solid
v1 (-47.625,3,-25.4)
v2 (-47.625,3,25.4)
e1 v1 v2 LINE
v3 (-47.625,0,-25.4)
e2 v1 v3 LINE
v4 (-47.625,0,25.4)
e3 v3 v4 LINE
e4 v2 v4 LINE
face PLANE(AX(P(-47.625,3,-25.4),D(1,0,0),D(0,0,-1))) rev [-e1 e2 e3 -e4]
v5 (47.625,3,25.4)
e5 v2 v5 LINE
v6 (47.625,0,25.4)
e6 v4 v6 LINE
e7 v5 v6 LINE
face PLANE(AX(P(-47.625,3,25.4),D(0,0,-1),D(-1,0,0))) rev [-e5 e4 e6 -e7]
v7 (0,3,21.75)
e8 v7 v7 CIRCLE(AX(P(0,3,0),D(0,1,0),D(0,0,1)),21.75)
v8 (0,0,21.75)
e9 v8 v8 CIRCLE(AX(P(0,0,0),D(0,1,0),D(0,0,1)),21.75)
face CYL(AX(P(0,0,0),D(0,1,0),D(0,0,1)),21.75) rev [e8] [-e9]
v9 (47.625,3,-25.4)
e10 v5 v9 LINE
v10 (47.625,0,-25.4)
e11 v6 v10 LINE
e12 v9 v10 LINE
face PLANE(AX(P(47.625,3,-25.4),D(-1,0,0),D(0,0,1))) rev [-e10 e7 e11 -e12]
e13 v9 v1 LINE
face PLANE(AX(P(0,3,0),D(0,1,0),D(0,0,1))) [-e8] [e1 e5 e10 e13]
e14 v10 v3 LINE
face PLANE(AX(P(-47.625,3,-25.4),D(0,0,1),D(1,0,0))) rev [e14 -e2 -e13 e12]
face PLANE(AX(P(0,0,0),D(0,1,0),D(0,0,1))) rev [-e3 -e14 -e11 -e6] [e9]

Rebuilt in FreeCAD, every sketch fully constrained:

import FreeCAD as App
import Part
import Sketcher
from FreeCAD import Vector
Q = App.Units.Quantity


def add_polygon(sketch, points):
    """Adds a closed chain of lines whose ends are joined by coincident constraints."""
    first, n = sketch.GeometryCount, len(points)
    for a, b in zip(points, points[1:] + points[:1]):
        sketch.addGeometry(Part.LineSegment(App.Vector(*a, 0), App.Vector(*b, 0)), False)
    for i in range(n):
        sketch.addConstraint(Sketcher.Constraint("Coincident", first + i, 2, first + (i + 1) % n, 1))

doc = App.newDocument("Part")
body = doc.addObject("PartDesign::Body", "Body")

# Sketch on XZ plane
sketch1 = doc.addObject("Sketcher::SketchObject", "Sketch")
body.addObject(sketch1)
sketch1.AttachmentSupport = (doc.XZ_Plane, [""])
sketch1.MapMode = "FlatFace"
add_polygon(sketch1, [(-47.625, -25.4), (-47.625, 25.4), (47.625, 25.4), (47.625, -25.4)])  # lines 0-3
sketch1.addConstraint([
    Sketcher.Constraint("Vertical", 0),
    Sketcher.Constraint("Horizontal", 1),
    Sketcher.Constraint("Vertical", 2),
    Sketcher.Constraint("Horizontal", 3),
    Sketcher.Constraint("Symmetric", 0, 2, 2, 2, -1, 1),
    Sketcher.Constraint("DistanceY", 0, 1, 0, 2, Q("50.8 mm")),
    Sketcher.Constraint("DistanceX", 1, 1, 1, 2, Q("95.25 mm")),
])
pad1 = doc.addObject("PartDesign::Pad", "Pad")
body.addObject(pad1)
pad1.Profile = sketch1
pad1.Length = 3
pad1.Reversed = True

# Sketch on XZ plane
sketch2 = doc.addObject("Sketcher::SketchObject", "Sketch001")
body.addObject(sketch2)
sketch2.AttachmentSupport = (doc.XZ_Plane, [""])
sketch2.MapMode = "FlatFace"
sketch2.AttachmentOffset = App.Placement(Vector(0, 0, -3), App.Rotation())
sketch2.addGeometry(Part.Circle(Vector(0, 0, 0), Vector(0, 0, 1), 21.75), False)
sketch2.addConstraint([
    Sketcher.Constraint("Coincident", 0, 3, -1, 1),
    Sketcher.Constraint("Diameter", 0, Q("43.5 mm")),
])
pocket1 = doc.addObject("PartDesign::Pocket", "Pocket")
body.addObject(pocket1)
pocket1.Profile = sketch2
pocket1.Type = "ThroughAll"
pocket1.Midplane = True

doc.recompute()
